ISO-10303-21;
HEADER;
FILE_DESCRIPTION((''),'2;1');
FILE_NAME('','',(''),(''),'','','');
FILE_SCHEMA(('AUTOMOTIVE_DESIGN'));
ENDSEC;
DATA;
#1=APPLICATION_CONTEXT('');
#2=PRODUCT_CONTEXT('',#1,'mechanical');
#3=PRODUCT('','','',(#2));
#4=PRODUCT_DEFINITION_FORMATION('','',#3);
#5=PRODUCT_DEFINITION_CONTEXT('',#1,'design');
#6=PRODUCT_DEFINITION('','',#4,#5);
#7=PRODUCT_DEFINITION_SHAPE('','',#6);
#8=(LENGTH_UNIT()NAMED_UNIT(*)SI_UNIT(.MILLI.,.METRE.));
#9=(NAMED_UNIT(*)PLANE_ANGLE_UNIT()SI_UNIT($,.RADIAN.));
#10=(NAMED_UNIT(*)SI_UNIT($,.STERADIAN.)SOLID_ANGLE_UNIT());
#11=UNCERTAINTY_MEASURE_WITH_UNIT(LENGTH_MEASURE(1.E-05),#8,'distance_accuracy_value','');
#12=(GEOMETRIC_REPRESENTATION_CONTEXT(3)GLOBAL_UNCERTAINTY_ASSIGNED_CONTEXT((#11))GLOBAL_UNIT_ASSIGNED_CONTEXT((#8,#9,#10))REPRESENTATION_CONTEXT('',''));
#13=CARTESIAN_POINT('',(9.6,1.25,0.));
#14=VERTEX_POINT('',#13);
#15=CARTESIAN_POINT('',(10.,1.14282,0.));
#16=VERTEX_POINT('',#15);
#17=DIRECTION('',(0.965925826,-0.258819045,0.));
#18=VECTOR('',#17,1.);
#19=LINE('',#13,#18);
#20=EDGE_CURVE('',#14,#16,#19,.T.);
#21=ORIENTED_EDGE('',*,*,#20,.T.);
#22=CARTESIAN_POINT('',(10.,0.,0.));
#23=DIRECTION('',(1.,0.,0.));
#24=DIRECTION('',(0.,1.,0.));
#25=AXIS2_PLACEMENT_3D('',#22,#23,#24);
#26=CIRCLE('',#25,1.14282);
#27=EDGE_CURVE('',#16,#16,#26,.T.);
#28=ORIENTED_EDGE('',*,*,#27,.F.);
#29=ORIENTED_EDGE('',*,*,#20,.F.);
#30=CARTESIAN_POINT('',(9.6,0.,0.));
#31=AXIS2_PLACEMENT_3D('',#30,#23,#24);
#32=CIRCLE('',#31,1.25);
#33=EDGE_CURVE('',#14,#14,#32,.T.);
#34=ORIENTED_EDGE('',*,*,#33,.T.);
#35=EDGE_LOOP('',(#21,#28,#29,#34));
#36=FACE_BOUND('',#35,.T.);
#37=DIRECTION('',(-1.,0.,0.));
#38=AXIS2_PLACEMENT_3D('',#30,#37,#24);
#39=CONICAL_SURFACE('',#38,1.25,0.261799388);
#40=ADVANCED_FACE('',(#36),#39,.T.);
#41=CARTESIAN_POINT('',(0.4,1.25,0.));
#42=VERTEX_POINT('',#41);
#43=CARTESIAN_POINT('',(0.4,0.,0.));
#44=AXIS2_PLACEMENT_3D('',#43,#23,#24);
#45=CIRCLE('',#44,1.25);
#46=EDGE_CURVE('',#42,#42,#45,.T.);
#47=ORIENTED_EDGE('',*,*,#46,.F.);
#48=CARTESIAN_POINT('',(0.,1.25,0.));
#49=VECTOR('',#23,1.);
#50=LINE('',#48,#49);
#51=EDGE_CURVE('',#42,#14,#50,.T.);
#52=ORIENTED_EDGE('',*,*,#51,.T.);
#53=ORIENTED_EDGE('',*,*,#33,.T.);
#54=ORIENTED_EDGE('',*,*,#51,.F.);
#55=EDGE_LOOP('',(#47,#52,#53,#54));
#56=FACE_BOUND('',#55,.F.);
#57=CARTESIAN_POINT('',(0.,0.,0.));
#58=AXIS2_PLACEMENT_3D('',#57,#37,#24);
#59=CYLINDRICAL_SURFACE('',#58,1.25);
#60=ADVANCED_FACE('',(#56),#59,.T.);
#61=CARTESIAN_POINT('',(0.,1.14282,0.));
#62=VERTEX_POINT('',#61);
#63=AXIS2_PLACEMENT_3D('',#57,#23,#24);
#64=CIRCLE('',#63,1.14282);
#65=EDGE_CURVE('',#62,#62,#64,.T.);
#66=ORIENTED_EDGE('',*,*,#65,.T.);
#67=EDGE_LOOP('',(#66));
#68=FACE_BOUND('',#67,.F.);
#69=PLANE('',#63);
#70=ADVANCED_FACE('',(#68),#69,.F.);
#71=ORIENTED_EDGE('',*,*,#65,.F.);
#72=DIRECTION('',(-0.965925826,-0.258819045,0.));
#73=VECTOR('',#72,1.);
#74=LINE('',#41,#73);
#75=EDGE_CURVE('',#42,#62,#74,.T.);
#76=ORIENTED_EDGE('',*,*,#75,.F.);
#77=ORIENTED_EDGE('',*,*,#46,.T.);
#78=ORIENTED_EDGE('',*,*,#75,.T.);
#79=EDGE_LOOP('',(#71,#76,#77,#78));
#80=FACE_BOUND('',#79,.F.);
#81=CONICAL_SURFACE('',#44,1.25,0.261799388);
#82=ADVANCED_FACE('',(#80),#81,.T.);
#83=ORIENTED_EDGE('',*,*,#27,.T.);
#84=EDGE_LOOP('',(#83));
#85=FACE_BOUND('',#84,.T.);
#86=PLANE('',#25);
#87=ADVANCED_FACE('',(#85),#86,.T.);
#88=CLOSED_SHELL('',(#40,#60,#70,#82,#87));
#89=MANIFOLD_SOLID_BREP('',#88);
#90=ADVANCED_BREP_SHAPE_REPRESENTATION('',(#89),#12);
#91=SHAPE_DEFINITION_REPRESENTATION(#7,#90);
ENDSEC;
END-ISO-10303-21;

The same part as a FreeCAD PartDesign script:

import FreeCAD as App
import Part
import Sketcher
from FreeCAD import Vector


def edges_at(feature, points):
    """Names of the edges that pass closest to the given points."""
    edges = feature.Shape.Edges
    near = lambda p: min(range(len(edges)), key=lambda i: edges[i].distToShape(Part.Vertex(*p))[0])
    return sorted({f"Edge{near(p) + 1}" for p in points})

doc = App.newDocument("Part")
params = doc.addObject("Spreadsheet::Sheet", "Params")
for row, (alias, value) in enumerate([
    ("sketch1_diameter", "2.5 mm"),
    ("pad1_length", "10 mm"),
    ("chamfer_size", "0.4 mm"),
    ("chamfer2_size", "0.4 mm"),
], start=1):
    params.set(f"A{row}", alias)
    params.set(f"B{row}", "=" + value)
    params.setAlias(f"B{row}", alias)

body = doc.addObject("PartDesign::Body", "Body")

# Sketch on YZ plane
sketch1 = body.newObject("Sketcher::SketchObject", "Sketch")
sketch1.AttachmentSupport = (doc.getObject("YZ_Plane"), [""])
sketch1.MapMode = "FlatFace"
sketch1.addGeometry(Part.Circle(Vector(0, 0, 0), Vector(0, 0, 1), 1.2), False)
sketch1.addConstraint([
    Sketcher.Constraint("Coincident", 0, 3, -1, 1),
    Sketcher.Constraint("Diameter", 0, 2.5),
])
sketch1.setExpression("Constraints[1]", "Params.sketch1_diameter")
pad1 = body.newObject("PartDesign::Pad", "Pad")
pad1.Profile = sketch1
pad1.setExpression("Length", "Params.pad1_length")
doc.recompute()

chamfer = body.newObject("PartDesign::Chamfer", "Chamfer")
chamfer.Base = (pad1, edges_at(pad1, [(0, -1.25, 0)]))
chamfer.ChamferType = "Distance and Angle"
chamfer.setExpression("Size", "Params.chamfer_size")
chamfer.Angle = 15
doc.recompute()

chamfer2 = body.newObject("PartDesign::Chamfer", "Chamfer001")
chamfer2.Base = (chamfer, edges_at(chamfer, [(10, -1.25, 0)]))
chamfer2.ChamferType = "Distance and Angle"
chamfer2.setExpression("Size", "Params.chamfer2_size")
chamfer2.Angle = 15

doc.recompute()
